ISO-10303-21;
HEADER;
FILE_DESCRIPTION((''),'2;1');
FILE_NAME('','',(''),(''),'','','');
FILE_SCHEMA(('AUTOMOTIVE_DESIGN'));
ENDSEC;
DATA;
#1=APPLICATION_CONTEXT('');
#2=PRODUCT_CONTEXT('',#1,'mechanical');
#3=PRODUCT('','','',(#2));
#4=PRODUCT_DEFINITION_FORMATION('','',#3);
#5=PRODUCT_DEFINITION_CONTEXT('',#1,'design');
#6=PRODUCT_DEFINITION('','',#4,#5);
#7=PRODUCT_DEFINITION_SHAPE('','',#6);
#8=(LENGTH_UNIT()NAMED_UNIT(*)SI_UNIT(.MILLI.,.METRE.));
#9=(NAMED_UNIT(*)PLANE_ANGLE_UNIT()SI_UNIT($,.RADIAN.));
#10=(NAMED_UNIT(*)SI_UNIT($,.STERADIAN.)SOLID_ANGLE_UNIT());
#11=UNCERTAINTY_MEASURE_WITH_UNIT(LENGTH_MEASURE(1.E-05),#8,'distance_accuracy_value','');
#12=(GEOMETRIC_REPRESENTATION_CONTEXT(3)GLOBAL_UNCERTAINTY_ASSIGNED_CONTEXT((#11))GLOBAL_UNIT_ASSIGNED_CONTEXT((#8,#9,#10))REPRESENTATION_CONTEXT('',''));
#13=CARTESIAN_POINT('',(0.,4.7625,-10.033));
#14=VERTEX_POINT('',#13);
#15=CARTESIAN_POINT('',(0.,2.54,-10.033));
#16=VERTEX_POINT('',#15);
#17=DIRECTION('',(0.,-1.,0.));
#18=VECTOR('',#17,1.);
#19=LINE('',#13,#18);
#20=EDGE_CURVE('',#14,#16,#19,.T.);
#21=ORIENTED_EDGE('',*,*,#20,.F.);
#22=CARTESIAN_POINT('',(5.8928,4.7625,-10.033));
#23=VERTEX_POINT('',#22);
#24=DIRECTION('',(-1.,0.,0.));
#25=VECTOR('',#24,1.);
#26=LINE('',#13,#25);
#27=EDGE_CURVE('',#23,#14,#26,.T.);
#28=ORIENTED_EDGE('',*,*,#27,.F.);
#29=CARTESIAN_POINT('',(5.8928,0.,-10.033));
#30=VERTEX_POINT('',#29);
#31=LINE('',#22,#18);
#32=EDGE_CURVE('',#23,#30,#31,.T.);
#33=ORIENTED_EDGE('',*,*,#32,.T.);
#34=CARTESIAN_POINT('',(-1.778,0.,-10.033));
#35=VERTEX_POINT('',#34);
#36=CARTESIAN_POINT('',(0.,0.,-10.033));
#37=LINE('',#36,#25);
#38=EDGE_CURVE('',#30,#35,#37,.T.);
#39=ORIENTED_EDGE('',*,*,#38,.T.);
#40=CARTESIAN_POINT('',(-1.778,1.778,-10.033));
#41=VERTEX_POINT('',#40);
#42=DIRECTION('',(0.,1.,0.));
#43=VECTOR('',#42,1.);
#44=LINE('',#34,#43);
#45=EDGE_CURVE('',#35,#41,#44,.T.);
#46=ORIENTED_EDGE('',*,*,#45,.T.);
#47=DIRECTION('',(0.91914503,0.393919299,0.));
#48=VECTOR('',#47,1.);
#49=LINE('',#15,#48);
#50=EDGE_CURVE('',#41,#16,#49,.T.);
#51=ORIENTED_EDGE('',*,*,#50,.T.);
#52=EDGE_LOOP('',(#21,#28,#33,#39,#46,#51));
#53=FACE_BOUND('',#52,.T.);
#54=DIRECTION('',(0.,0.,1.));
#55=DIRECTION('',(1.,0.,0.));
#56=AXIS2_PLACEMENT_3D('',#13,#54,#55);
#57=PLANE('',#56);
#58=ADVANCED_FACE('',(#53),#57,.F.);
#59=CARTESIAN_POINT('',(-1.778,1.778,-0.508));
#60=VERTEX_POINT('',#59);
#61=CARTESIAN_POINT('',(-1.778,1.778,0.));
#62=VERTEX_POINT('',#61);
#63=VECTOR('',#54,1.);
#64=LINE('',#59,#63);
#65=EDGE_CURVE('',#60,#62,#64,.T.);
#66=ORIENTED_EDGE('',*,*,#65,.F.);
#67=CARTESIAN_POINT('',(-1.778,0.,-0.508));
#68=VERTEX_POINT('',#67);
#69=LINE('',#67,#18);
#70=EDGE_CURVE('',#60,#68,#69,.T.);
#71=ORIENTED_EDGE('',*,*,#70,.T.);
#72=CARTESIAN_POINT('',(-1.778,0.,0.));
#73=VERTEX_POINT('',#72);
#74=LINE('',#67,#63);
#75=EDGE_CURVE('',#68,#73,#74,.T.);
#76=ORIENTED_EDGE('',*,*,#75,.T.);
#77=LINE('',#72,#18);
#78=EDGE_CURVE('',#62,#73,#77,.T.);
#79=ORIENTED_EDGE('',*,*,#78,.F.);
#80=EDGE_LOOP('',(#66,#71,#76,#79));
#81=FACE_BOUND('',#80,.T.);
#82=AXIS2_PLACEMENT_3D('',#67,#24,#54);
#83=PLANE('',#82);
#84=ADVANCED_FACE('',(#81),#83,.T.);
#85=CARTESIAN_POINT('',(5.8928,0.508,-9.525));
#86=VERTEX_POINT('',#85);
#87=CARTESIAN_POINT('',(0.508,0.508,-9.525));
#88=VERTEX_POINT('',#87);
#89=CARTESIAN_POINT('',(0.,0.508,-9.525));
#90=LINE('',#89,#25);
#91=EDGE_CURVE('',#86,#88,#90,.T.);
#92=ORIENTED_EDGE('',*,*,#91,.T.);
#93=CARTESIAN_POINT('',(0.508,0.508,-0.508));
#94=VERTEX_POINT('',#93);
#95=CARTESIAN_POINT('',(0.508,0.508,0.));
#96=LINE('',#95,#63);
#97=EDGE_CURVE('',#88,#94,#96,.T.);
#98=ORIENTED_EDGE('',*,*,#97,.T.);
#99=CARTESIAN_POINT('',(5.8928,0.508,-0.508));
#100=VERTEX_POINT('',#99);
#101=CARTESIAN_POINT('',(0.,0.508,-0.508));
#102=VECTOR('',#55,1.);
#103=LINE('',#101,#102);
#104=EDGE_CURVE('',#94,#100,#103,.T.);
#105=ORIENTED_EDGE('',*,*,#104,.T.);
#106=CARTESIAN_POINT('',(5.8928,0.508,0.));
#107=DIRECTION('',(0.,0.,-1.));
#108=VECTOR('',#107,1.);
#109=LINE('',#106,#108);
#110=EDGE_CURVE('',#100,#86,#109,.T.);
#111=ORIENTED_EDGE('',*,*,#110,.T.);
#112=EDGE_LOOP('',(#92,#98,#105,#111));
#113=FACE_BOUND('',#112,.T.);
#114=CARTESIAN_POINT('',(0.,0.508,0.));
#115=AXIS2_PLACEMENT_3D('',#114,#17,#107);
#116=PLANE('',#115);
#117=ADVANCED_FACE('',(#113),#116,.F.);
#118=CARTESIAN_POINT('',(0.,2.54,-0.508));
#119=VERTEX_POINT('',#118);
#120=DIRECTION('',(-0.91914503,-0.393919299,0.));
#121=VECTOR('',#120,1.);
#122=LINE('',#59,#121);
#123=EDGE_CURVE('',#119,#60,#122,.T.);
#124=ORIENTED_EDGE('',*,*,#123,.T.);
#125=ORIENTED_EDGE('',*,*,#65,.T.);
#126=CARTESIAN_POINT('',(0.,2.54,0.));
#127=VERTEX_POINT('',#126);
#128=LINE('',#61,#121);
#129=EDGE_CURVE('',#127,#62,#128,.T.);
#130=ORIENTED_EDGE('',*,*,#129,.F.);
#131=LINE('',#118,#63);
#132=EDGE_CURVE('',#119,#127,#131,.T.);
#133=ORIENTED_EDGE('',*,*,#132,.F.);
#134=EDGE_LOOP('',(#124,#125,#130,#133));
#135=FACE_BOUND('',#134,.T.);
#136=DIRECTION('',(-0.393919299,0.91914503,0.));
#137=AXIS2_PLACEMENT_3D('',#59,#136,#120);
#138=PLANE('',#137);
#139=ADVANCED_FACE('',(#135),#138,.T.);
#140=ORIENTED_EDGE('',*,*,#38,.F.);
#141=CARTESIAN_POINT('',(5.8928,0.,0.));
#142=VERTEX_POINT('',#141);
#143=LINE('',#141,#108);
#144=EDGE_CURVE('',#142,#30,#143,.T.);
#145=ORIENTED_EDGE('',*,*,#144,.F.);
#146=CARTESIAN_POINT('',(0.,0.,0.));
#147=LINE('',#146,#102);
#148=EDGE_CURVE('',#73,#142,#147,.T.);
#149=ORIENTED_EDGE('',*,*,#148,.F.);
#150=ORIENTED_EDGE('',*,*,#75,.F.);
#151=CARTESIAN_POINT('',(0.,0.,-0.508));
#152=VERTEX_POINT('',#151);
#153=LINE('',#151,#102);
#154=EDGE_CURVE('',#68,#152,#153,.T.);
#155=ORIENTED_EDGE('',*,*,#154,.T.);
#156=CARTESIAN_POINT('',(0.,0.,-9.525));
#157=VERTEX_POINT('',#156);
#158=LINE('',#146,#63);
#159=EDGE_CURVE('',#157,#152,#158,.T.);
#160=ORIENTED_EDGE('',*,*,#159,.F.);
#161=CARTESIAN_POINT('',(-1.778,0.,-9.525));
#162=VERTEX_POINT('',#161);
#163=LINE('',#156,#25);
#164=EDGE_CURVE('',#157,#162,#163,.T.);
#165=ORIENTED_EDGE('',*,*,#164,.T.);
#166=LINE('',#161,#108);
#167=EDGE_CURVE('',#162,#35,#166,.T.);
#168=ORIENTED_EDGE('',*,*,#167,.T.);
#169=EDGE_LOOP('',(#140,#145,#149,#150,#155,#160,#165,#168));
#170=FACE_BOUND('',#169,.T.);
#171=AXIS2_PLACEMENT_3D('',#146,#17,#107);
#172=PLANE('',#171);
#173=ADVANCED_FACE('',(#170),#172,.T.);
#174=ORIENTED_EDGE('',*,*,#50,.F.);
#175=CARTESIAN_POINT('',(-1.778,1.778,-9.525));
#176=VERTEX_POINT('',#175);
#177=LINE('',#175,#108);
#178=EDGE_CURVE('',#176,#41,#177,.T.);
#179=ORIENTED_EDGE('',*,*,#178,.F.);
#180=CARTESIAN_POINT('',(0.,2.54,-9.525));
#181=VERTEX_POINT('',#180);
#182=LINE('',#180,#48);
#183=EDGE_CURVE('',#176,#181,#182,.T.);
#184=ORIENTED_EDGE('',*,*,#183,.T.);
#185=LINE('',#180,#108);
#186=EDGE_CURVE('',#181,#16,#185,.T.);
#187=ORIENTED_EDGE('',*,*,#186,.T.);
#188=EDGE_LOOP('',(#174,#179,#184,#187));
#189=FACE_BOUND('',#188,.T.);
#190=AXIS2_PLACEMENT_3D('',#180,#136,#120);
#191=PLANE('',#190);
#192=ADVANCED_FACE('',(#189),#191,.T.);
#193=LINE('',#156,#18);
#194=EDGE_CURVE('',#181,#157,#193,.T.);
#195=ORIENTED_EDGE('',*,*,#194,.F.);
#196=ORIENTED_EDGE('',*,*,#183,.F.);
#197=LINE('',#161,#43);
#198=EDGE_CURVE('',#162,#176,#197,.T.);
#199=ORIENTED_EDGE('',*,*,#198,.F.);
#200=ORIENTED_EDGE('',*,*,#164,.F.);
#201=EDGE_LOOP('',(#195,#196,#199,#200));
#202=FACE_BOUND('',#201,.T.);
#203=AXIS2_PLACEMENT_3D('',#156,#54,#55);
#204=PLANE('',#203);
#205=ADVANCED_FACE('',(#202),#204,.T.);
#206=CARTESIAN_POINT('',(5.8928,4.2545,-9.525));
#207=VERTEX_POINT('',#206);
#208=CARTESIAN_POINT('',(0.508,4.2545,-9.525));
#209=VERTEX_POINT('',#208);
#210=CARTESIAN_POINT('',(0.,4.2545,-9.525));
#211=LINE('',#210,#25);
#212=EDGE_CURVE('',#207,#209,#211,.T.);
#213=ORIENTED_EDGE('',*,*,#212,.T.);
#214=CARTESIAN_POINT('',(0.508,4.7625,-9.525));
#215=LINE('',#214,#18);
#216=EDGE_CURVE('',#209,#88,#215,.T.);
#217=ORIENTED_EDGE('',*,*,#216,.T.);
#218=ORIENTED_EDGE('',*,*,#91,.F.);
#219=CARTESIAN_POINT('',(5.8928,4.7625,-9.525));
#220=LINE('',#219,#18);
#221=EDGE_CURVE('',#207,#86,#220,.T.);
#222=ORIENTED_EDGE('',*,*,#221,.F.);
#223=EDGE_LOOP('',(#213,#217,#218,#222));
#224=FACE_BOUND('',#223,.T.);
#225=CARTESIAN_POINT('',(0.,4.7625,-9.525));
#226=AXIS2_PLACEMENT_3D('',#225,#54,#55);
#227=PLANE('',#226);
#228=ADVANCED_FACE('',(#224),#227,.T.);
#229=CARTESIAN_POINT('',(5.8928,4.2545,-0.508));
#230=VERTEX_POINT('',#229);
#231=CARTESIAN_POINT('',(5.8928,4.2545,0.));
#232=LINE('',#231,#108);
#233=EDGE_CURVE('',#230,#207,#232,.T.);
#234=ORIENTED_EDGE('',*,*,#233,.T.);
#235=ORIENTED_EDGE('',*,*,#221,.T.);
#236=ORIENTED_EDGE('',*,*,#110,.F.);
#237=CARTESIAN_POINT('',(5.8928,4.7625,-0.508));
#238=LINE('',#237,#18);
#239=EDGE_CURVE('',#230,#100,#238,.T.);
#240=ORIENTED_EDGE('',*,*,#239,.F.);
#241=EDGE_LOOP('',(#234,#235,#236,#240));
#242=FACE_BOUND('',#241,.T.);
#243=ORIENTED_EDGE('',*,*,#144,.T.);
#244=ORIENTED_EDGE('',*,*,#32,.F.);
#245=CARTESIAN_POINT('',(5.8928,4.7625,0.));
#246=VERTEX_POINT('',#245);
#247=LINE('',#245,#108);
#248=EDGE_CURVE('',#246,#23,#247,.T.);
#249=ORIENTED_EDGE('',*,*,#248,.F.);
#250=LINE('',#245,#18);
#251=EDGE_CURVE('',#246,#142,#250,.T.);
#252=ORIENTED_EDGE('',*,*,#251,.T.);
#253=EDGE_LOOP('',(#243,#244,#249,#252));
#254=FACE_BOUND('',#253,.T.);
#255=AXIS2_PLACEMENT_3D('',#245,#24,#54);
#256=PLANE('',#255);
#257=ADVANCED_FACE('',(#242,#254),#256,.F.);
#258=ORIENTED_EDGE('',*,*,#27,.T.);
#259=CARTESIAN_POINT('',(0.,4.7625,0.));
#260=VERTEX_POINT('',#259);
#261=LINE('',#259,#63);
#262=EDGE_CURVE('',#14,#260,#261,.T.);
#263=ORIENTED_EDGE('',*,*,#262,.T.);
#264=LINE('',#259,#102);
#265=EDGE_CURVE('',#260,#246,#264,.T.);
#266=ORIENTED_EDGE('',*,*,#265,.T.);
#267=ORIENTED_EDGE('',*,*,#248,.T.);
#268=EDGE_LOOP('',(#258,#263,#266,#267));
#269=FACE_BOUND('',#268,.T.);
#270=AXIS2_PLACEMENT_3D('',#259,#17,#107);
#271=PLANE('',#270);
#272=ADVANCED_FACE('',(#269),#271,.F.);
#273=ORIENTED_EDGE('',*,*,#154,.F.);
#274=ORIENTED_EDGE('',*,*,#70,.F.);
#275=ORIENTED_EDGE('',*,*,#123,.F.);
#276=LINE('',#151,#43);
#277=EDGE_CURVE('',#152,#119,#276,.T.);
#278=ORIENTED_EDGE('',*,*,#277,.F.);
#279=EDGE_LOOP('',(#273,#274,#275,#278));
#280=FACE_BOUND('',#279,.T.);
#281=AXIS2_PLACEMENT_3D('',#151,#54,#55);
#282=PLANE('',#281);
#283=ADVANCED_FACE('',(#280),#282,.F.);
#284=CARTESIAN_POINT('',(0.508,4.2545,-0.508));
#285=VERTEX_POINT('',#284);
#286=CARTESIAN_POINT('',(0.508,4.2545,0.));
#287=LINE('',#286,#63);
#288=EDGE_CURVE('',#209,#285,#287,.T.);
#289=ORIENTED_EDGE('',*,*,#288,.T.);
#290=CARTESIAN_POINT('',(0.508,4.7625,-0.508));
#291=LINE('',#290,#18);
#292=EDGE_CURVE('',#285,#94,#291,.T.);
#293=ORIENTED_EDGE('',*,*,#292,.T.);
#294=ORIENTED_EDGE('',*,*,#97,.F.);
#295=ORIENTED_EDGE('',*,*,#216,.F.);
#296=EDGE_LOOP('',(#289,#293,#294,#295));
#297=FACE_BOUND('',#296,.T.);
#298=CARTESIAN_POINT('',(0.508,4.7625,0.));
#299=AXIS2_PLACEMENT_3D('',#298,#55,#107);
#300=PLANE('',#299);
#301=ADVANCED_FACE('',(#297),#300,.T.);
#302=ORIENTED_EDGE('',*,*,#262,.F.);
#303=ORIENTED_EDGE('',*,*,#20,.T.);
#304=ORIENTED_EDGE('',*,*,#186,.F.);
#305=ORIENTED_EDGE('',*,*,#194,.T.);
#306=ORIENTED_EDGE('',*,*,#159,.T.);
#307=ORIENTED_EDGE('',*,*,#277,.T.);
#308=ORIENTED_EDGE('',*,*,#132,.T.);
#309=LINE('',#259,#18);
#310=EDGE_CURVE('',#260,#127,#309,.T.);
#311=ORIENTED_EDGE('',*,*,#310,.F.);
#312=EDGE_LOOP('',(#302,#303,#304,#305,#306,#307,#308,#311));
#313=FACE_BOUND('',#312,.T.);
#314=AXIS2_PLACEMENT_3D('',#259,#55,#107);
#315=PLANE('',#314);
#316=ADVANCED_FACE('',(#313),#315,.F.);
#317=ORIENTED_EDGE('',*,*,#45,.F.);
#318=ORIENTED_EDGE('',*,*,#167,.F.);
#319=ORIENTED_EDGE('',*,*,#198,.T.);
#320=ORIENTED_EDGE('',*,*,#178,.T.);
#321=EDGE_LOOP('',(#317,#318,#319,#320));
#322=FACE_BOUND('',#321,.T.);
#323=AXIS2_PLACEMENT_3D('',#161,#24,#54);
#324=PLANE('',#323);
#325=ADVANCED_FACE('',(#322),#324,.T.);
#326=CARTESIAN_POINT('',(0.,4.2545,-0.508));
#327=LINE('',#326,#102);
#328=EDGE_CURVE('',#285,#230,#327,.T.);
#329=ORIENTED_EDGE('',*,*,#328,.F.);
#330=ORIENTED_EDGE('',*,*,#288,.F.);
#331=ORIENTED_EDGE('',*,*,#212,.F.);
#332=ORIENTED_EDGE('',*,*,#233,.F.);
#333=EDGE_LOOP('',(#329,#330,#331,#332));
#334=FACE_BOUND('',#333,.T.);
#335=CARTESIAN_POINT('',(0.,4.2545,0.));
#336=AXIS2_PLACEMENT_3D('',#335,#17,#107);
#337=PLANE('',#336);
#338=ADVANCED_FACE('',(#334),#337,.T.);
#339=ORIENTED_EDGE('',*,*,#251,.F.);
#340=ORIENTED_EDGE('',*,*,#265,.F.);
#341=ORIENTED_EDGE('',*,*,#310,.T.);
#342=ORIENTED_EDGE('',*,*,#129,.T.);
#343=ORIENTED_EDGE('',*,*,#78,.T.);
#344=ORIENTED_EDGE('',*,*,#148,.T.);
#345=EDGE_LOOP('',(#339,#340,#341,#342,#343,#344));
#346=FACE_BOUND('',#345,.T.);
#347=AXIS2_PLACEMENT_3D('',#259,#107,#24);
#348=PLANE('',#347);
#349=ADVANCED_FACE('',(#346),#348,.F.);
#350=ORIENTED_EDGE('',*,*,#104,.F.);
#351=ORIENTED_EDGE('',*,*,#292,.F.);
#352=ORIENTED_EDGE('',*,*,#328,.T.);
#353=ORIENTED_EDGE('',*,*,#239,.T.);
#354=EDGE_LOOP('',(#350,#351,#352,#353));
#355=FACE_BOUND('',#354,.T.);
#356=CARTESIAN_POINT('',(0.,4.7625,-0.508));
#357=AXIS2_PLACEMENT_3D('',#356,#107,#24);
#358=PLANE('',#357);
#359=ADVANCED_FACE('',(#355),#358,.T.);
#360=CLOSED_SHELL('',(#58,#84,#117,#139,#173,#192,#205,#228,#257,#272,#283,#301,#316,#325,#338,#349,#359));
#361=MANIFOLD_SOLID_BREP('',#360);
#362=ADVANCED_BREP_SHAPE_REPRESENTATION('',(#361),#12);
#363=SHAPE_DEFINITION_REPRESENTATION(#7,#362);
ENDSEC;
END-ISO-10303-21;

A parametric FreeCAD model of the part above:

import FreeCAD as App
import Part
import Sketcher
Q = App.Units.Quantity


def faces_at(feature, points):
    """Names of the faces that lie closest to the given points."""
    faces = feature.Shape.Faces
    near = lambda p: min(range(len(faces)), key=lambda i: faces[i].distToShape(Part.Vertex(*p))[0])
    return sorted({f"Face{near(p) + 1}" for p in points})

doc = App.newDocument("Part")
body = doc.addObject("PartDesign::Body", "Body")

# Sketch on XZ plane
sketch1 = body.newObject("Sketcher::SketchObject", "Sketch")
sketch1.AttachmentSupport = (doc.getObject("XZ_Plane"), [""])
sketch1.MapMode = "FlatFace"
sketch1.addGeometry([
    Part.LineSegment(App.Vector(0, -10, 0), App.Vector(0, 0, 0)),
    Part.LineSegment(App.Vector(0, 0, 0), App.Vector(6, 0, 0)),
    Part.LineSegment(App.Vector(6, 0, 0), App.Vector(6, -10, 0)),
    Part.LineSegment(App.Vector(6, -10, 0), App.Vector(0, -10, 0)),
], False)
sketch1.addConstraint([
    Sketcher.Constraint("Coincident", 0, 2, 1, 1),
    Sketcher.Constraint("Coincident", 1, 2, 2, 1),
    Sketcher.Constraint("Coincident", 2, 2, 3, 1),
    Sketcher.Constraint("Coincident", 3, 2, 0, 1),
    Sketcher.Constraint("Vertical", 0),
    Sketcher.Constraint("Horizontal", 1),
    Sketcher.Constraint("Vertical", 2),
    Sketcher.Constraint("Horizontal", 3),
    Sketcher.Constraint("Coincident", 0, 2, -1, 1),
    Sketcher.Constraint("DistanceX", 1, 1, 1, 2, Q("0.232 in")),
    Sketcher.Constraint("DistanceY", 0, 1, 0, 2, Q("0.395 in")),
])
pad1 = body.newObject("PartDesign::Pad", "Pad")
pad1.Profile = sketch1
pad1.Length = Q("0.1875 in")
pad1.Reversed = True
doc.recompute()

thickness = body.newObject("PartDesign::Thickness", "Thickness")
thickness.Base = (pad1, faces_at(pad1, [(5.893, 2.381, -5.016)]))
thickness.Value = Q("0.02 in")
thickness.Reversed = True
thickness.Join = "Intersection"

# Sketch on XY plane
sketch2 = body.newObject("Sketcher::SketchObject", "Sketch001")
sketch2.AttachmentSupport = (doc.getObject("XY_Plane"), [""])
sketch2.MapMode = "FlatFace"
sketch2.addGeometry([
    Part.LineSegment(App.Vector(0, 2.5, 0), App.Vector(-1.8, 1.8, 0)),
    Part.LineSegment(App.Vector(-1.8, 1.8, 0), App.Vector(-1.8, 0, 0)),
    Part.LineSegment(App.Vector(-1.8, 0, 0), App.Vector(0, 0, 0)),
    Part.LineSegment(App.Vector(0, 0, 0), App.Vector(0, 2.5, 0)),
], False)
sketch2.addConstraint([
    Sketcher.Constraint("Coincident", 0, 2, 1, 1),
    Sketcher.Constraint("Coincident", 1, 2, 2, 1),
    Sketcher.Constraint("Coincident", 2, 2, 3, 1),
    Sketcher.Constraint("Coincident", 3, 2, 0, 1),
    Sketcher.Constraint("Vertical", 1),
    Sketcher.Constraint("Horizontal", 2),
    Sketcher.Constraint("Vertical", 3),
    Sketcher.Constraint("Coincident", 2, 2, -1, 1),
    Sketcher.Constraint("Equal", 2, 1),
    Sketcher.Constraint("DistanceY", 3, 1, 3, 2, Q("0.1 in")),
    Sketcher.Constraint("DistanceX", 2, 1, 2, 2, Q("0.07 in")),
])
pad2 = body.newObject("PartDesign::Pad", "Pad001")
pad2.Profile = sketch2
pad2.Length = Q("0.02 in")
pad2.Reversed = True

# Sketch on XY plane
sketch3 = body.newObject("Sketcher::SketchObject", "Sketch002")
sketch3.AttachmentSupport = (doc.getObject("XY_Plane"), [""])
sketch3.MapMode = "FlatFace"
sketch3.AttachmentOffset = App.Placement(App.Vector(0, 0, -0.395 * 25.4), App.Rotation())
sketch3.addGeometry([
    Part.LineSegment(App.Vector(-1.8, 1.8, 0), App.Vector(0, 2.5, 0)),
    Part.LineSegment(App.Vector(0, 2.5, 0), App.Vector(0, 0, 0)),
    Part.LineSegment(App.Vector(0, 0, 0), App.Vector(-1.8, 0, 0)),
    Part.LineSegment(App.Vector(-1.8, 0, 0), App.Vector(-1.8, 1.8, 0)),
], False)
sketch3.addConstraint([
    Sketcher.Constraint("Coincident", 0, 2, 1, 1),
    Sketcher.Constraint("Coincident", 1, 2, 2, 1),
    Sketcher.Constraint("Coincident", 2, 2, 3, 1),
    Sketcher.Constraint("Coincident", 3, 2, 0, 1),
    Sketcher.Constraint("Vertical", 1),
    Sketcher.Constraint("Horizontal", 2),
    Sketcher.Constraint("Vertical", 3),
    Sketcher.Constraint("Coincident", 1, 2, -1, 1),
    Sketcher.Constraint("Equal", 2, 3),
    Sketcher.Constraint("DistanceY", 1, 2, 1, 1, Q("0.1 in")),
    Sketcher.Constraint("DistanceX", 2, 2, 2, 1, Q("0.07 in")),
])
pad3 = body.newObject("PartDesign::Pad", "Pad002")
pad3.Profile = sketch3
pad3.Length = Q("0.02 in")

doc.recompute()
